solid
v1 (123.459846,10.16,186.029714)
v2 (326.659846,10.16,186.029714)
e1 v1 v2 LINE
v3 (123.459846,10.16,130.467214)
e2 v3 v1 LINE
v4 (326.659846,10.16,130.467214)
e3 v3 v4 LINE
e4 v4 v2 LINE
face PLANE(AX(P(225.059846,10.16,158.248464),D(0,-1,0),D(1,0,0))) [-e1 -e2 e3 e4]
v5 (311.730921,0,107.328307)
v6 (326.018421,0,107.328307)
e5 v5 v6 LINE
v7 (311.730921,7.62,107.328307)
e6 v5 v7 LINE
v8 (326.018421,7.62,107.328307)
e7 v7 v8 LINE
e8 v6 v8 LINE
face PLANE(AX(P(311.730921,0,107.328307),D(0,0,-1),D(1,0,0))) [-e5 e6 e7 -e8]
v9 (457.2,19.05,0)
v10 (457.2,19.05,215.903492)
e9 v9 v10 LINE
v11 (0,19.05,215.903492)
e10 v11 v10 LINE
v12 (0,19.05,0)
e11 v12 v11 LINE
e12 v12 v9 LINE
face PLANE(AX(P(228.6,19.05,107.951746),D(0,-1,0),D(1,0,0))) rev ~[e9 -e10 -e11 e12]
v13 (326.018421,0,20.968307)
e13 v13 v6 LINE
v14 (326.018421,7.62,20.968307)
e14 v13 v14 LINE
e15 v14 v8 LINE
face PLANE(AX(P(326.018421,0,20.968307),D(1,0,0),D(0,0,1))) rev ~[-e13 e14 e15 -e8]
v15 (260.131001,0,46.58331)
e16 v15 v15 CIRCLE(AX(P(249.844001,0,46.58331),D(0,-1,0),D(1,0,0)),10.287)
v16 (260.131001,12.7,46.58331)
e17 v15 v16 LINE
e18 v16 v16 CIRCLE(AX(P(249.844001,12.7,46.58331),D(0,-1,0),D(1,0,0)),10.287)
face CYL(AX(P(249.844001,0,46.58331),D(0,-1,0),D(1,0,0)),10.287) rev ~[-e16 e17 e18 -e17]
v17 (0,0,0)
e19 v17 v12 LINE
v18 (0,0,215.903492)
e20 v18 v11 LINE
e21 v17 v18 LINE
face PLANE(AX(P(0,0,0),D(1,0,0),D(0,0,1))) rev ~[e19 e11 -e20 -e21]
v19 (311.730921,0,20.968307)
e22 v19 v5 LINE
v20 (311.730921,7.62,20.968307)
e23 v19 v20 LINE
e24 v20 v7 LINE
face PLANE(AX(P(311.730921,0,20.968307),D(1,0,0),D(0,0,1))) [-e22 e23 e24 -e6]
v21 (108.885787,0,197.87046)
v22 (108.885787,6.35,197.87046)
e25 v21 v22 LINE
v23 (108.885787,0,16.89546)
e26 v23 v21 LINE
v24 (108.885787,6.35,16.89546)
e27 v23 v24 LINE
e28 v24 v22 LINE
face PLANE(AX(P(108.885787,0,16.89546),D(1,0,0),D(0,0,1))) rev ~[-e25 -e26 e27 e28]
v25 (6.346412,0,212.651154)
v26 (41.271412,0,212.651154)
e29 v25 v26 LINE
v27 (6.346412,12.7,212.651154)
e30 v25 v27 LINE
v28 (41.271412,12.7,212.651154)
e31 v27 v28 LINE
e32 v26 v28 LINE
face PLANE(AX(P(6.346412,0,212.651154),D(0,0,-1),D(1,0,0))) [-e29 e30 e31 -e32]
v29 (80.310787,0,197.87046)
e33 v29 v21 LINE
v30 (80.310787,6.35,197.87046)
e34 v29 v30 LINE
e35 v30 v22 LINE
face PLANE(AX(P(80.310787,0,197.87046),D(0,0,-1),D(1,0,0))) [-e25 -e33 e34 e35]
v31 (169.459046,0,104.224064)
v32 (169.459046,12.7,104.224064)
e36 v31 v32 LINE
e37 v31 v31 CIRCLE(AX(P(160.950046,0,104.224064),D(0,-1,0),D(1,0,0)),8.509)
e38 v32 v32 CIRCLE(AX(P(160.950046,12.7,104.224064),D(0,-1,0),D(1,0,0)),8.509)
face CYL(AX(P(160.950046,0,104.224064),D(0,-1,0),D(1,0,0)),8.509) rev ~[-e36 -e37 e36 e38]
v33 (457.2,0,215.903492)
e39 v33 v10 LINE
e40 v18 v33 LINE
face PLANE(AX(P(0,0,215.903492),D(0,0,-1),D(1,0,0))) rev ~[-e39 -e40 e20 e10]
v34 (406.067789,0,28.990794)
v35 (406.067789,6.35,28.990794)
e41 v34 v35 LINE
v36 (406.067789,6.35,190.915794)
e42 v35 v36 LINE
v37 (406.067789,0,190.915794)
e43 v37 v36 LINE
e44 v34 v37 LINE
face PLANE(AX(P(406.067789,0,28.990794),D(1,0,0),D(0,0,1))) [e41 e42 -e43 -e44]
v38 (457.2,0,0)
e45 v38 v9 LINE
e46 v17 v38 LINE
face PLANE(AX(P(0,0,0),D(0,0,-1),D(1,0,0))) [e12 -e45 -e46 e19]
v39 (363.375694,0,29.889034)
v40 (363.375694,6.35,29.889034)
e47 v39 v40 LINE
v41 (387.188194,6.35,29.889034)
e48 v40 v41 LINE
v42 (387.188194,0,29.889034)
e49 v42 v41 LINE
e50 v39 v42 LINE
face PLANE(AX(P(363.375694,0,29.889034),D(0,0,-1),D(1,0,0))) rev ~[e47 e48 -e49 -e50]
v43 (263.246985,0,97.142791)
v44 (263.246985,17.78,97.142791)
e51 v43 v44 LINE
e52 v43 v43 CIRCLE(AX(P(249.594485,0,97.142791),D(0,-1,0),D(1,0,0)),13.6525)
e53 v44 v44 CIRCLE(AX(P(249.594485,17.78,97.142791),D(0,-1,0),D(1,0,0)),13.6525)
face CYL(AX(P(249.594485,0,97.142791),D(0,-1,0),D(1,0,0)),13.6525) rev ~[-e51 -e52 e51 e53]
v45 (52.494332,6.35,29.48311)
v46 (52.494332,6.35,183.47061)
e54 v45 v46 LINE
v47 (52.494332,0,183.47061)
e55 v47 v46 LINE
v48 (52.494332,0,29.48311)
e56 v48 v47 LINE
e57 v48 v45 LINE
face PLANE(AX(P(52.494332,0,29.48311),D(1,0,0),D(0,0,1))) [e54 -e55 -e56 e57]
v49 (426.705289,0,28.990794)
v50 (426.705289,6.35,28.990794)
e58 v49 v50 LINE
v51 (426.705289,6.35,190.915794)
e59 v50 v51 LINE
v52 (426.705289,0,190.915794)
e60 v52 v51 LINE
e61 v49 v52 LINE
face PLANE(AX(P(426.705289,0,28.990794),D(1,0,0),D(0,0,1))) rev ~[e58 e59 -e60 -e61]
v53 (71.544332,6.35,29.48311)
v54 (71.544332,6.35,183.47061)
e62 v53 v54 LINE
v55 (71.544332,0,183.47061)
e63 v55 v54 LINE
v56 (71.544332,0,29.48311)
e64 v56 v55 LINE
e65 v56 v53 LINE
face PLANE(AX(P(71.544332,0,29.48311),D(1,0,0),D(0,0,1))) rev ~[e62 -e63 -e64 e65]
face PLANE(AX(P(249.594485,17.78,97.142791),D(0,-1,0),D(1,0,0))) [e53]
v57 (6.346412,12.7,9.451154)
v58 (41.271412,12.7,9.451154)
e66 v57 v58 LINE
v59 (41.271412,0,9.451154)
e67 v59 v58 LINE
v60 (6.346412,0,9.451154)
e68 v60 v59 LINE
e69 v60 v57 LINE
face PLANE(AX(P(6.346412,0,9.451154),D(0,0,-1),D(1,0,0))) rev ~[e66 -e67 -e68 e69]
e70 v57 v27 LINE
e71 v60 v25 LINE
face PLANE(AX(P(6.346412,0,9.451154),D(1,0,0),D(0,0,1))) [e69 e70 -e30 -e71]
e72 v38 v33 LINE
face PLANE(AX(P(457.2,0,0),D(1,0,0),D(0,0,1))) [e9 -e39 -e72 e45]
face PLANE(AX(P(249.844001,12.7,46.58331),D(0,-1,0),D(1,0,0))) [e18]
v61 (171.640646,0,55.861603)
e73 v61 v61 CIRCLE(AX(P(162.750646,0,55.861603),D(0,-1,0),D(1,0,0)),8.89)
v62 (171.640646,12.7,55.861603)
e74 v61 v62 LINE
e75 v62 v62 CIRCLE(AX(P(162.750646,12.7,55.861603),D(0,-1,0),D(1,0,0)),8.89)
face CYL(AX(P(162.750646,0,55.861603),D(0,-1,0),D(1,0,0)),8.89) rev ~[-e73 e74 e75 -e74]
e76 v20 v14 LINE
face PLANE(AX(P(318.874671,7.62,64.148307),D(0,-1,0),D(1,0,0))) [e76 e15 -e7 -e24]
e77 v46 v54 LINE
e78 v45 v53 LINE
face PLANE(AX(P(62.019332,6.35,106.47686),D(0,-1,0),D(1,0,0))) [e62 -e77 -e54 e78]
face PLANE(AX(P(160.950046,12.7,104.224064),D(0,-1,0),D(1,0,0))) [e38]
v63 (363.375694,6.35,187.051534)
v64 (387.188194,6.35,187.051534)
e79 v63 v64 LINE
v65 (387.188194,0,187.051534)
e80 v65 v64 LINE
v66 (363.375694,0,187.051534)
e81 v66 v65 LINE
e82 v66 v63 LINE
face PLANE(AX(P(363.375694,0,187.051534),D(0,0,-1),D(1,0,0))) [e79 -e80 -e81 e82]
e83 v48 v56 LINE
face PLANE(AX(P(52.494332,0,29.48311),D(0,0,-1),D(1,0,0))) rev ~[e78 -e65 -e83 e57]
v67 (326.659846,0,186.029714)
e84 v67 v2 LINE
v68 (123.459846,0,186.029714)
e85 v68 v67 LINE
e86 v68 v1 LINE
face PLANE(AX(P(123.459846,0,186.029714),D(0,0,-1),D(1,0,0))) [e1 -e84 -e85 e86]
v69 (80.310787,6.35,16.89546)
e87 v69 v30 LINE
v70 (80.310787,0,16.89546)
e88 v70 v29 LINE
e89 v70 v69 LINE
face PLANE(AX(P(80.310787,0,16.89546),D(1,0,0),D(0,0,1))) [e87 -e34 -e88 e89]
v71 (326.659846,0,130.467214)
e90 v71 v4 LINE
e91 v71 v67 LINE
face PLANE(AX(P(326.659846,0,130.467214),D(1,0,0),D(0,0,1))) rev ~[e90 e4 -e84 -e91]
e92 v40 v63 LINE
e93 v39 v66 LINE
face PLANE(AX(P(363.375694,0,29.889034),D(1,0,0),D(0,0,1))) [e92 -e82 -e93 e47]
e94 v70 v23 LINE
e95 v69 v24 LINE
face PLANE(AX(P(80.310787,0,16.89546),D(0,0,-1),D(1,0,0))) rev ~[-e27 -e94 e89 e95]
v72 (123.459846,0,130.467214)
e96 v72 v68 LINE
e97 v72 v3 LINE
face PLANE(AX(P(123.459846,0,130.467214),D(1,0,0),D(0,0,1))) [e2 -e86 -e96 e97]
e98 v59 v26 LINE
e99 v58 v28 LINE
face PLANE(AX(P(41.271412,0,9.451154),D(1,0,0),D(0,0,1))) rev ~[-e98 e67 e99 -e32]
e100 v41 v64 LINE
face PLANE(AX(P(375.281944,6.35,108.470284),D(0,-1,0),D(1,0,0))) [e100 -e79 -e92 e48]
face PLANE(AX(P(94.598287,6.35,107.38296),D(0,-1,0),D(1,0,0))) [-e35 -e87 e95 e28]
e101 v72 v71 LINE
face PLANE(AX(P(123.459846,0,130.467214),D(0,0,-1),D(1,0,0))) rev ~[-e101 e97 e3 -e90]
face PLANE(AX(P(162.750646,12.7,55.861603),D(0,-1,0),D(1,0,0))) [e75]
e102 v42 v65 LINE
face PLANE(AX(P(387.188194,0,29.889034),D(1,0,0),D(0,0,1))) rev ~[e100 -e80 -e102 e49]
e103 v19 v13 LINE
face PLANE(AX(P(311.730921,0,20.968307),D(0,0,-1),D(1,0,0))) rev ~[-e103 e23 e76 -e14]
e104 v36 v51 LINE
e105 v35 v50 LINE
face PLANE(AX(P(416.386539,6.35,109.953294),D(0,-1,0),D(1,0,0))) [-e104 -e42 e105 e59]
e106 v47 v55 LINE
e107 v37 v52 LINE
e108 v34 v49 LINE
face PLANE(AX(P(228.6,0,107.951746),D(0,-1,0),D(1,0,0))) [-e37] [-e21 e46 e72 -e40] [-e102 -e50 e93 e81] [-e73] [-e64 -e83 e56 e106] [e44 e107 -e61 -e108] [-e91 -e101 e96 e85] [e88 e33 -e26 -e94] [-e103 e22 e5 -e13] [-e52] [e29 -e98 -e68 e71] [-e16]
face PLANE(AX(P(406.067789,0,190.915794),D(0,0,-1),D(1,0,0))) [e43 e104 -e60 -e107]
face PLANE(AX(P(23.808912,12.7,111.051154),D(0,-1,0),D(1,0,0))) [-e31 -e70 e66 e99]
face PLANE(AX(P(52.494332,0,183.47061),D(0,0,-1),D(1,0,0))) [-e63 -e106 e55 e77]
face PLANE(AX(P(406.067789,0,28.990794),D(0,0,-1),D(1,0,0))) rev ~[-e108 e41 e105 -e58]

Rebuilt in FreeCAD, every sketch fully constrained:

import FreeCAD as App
import Part
import Sketcher
from FreeCAD import Vector
Q = App.Units.Quantity

doc = App.newDocument("Part")
body = doc.addObject("PartDesign::Body", "Body")

# Sketch on XZ plane
sketch1 = doc.addObject("Sketcher::SketchObject", "Sketch")
body.addObject(sketch1)
sketch1.AttachmentSupport = (doc.XZ_Plane, [""])
sketch1.MapMode = "FlatFace"
sketch1.addGeometry([
    Part.LineSegment(Vector(0, 215.903492, 0), Vector(0, 0, 0)),
    Part.LineSegment(Vector(0, 0, 0), Vector(457.2, 0, 0)),
    Part.LineSegment(Vector(457.2, 0, 0), Vector(457.2, 215.903492, 0)),
    Part.LineSegment(Vector(457.2, 215.903492, 0), Vector(0, 215.903492, 0)),
], False)
sketch1.addConstraint([
    Sketcher.Constraint("Coincident", 0, 2, 1, 1),
    Sketcher.Constraint("Coincident", 1, 2, 2, 1),
    Sketcher.Constraint("Coincident", 2, 2, 3, 1),
    Sketcher.Constraint("Coincident", 3, 2, 0, 1),
    Sketcher.Constraint("Vertical", 0),
    Sketcher.Constraint("Horizontal", 1),
    Sketcher.Constraint("Vertical", 2),
    Sketcher.Constraint("Horizontal", 3),
    Sketcher.Constraint("Coincident", 0, 2, -1, 1),
    Sketcher.Constraint("DistanceX", 1, 1, 1, 2, Q("18 in")),
    Sketcher.Constraint("DistanceY", 0, 2, 0, 1, Q("215.903491 mm")),
])
pad1 = doc.addObject("PartDesign::Pad", "Pad")
body.addObject(pad1)
pad1.Profile = sketch1
pad1.Length = Q("0.75 in")
pad1.Reversed = True

# Sketch on XZ plane
sketch2 = doc.addObject("Sketcher::SketchObject", "Sketch001")
body.addObject(sketch2)
sketch2.AttachmentSupport = (doc.XZ_Plane, [""])
sketch2.MapMode = "FlatFace"
sketch2.addGeometry([
    Part.LineSegment(Vector(406.067789, 190.915794, 0), Vector(406.067789, 28.990794, 0)),
    Part.LineSegment(Vector(406.067789, 28.990794, 0), Vector(426.705289, 28.990794, 0)),
    Part.LineSegment(Vector(426.705289, 28.990794, 0), Vector(426.705289, 190.915794, 0)),
    Part.LineSegment(Vector(426.705289, 190.915794, 0), Vector(406.067789, 190.915794, 0)),
], False)
sketch2.addConstraint([
    Sketcher.Constraint("Coincident", 0, 2, 1, 1),
    Sketcher.Constraint("Coincident", 1, 2, 2, 1),
    Sketcher.Constraint("Coincident", 2, 2, 3, 1),
    Sketcher.Constraint("Coincident", 3, 2, 0, 1),
    Sketcher.Constraint("Vertical", 0),
    Sketcher.Constraint("Horizontal", 1),
    Sketcher.Constraint("Vertical", 2),
    Sketcher.Constraint("Horizontal", 3),
    Sketcher.Constraint("DistanceX", 1, 1, 1, 2, Q("0.8125 in")),
    Sketcher.Constraint("DistanceY", 0, 2, 0, 1, Q("6.375 in")),
    Sketcher.Constraint("DistanceX", -1, 1, 0, 2, Q("406.067789 mm")),
    Sketcher.Constraint("DistanceY", -1, 1, 0, 2, Q("28.990794 mm")),
])
pocket1 = doc.addObject("PartDesign::Pocket", "Pocket")
body.addObject(pocket1)
pocket1.Profile = sketch2
pocket1.Length = Q("0.25 in")

# Sketch on XZ plane
sketch3 = doc.addObject("Sketcher::SketchObject", "Sketch002")
body.addObject(sketch3)
sketch3.AttachmentSupport = (doc.XZ_Plane, [""])
sketch3.MapMode = "FlatFace"
sketch3.addGeometry([
    Part.LineSegment(Vector(363.375694, 187.051534, 0), Vector(363.375694, 29.889034, 0)),
    Part.LineSegment(Vector(363.375694, 29.889034, 0), Vector(387.188194, 29.889034, 0)),
    Part.LineSegment(Vector(387.188194, 29.889034, 0), Vector(387.188194, 187.051534, 0)),
    Part.LineSegment(Vector(387.188194, 187.051534, 0), Vector(363.375694, 187.051534, 0)),
], False)
sketch3.addConstraint([
    Sketcher.Constraint("Coincident", 0, 2, 1, 1),
    Sketcher.Constraint("Coincident", 1, 2, 2, 1),
    Sketcher.Constraint("Coincident", 2, 2, 3, 1),
    Sketcher.Constraint("Coincident", 3, 2, 0, 1),
    Sketcher.Constraint("Vertical", 0),
    Sketcher.Constraint("Horizontal", 1),
    Sketcher.Constraint("Vertical", 2),
    Sketcher.Constraint("Horizontal", 3),
    Sketcher.Constraint("DistanceX", 1, 1, 1, 2, Q("0.9375 in")),
    Sketcher.Constraint("DistanceY", 0, 2, 0, 1, Q("6.1875 in")),
    Sketcher.Constraint("DistanceX", -1, 1, 0, 2, Q("363.375694 mm")),
    Sketcher.Constraint("DistanceY", -1, 1, 0, 2, Q("29.889034 mm")),
])
pocket2 = doc.addObject("PartDesign::Pocket", "Pocket001")
body.addObject(pocket2)
pocket2.Profile = sketch3
pocket2.Length = Q("0.25 in")

# Sketch on XZ plane
sketch4 = doc.addObject("Sketcher::SketchObject", "Sketch003")
body.addObject(sketch4)
sketch4.AttachmentSupport = (doc.XZ_Plane, [""])
sketch4.MapMode = "FlatFace"
sketch4.addGeometry([
    Part.LineSegment(Vector(123.459846, 186.029714, 0), Vector(123.459846, 130.467214, 0)),
    Part.LineSegment(Vector(123.459846, 130.467214, 0), Vector(326.659846, 130.467214, 0)),
    Part.LineSegment(Vector(326.659846, 130.467214, 0), Vector(326.659846, 186.029714, 0)),
    Part.LineSegment(Vector(326.659846, 186.029714, 0), Vector(123.459846, 186.029714, 0)),
], False)
sketch4.addConstraint([
    Sketcher.Constraint("Coincident", 0, 2, 1, 1),
    Sketcher.Constraint("Coincident", 1, 2, 2, 1),
    Sketcher.Constraint("Coincident", 2, 2, 3, 1),
    Sketcher.Constraint("Coincident", 3, 2, 0, 1),
    Sketcher.Constraint("Vertical", 0),
    Sketcher.Constraint("Horizontal", 1),
    Sketcher.Constraint("Vertical", 2),
    Sketcher.Constraint("Horizontal", 3),
    Sketcher.Constraint("DistanceX", 1, 1, 1, 2, Q("8 in")),
    Sketcher.Constraint("DistanceY", 0, 2, 0, 1, Q("2.1875 in")),
    Sketcher.Constraint("DistanceX", -1, 1, 0, 2, Q("123.459846 mm")),
    Sketcher.Constraint("DistanceY", -1, 1, 0, 2, Q("130.467214 mm")),
])
pocket3 = doc.addObject("PartDesign::Pocket", "Pocket002")
body.addObject(pocket3)
pocket3.Profile = sketch4
pocket3.Length = Q("0.4 in")

# Sketch on XZ plane
sketch5 = doc.addObject("Sketcher::SketchObject", "Sketch004")
body.addObject(sketch5)
sketch5.AttachmentSupport = (doc.XZ_Plane, [""])
sketch5.MapMode = "FlatFace"
sketch5.addGeometry([
    Part.LineSegment(Vector(311.730921, 107.328307, 0), Vector(311.730921, 20.968307, 0)),
    Part.LineSegment(Vector(311.730921, 20.968307, 0), Vector(326.018421, 20.968307, 0)),
    Part.LineSegment(Vector(326.018421, 20.968307, 0), Vector(326.018421, 107.328307, 0)),
    Part.LineSegment(Vector(326.018421, 107.328307, 0), Vector(311.730921, 107.328307, 0)),
], False)
sketch5.addConstraint([
    Sketcher.Constraint("Coincident", 0, 2, 1, 1),
    Sketcher.Constraint("Coincident", 1, 2, 2, 1),
    Sketcher.Constraint("Coincident", 2, 2, 3, 1),
    Sketcher.Constraint("Coincident", 3, 2, 0, 1),
    Sketcher.Constraint("Vertical", 0),
    Sketcher.Constraint("Horizontal", 1),
    Sketcher.Constraint("Vertical", 2),
    Sketcher.Constraint("Horizontal", 3),
    Sketcher.Constraint("DistanceY", 0, 2, 0, 1, Q("3.4 in")),
    Sketcher.Constraint("DistanceX", 1, 1, 1, 2, Q("0.5625 in")),
    Sketcher.Constraint("DistanceX", -1, 1, 0, 2, Q("311.730921 mm")),
    Sketcher.Constraint("DistanceY", -1, 1, 0, 2, Q("20.968307 mm")),
])
pocket4 = doc.addObject("PartDesign::Pocket", "Pocket003")
body.addObject(pocket4)
pocket4.Profile = sketch5
pocket4.Length = Q("0.3 in")

# Sketch on XZ plane
sketch6 = doc.addObject("Sketcher::SketchObject", "Sketch005")
body.addObject(sketch6)
sketch6.AttachmentSupport = (doc.XZ_Plane, [""])
sketch6.MapMode = "FlatFace"
sketch6.addGeometry([
    Part.LineSegment(Vector(6.346412, 212.651154, 0), Vector(6.346412, 9.451154, 0)),
    Part.LineSegment(Vector(6.346412, 9.451154, 0), Vector(41.271412, 9.451154, 0)),
    Part.LineSegment(Vector(41.271412, 9.451154, 0), Vector(41.271412, 212.651154, 0)),
    Part.LineSegment(Vector(41.271412, 212.651154, 0), Vector(6.346412, 212.651154, 0)),
], False)
sketch6.addConstraint([
    Sketcher.Constraint("Coincident", 0, 2, 1, 1),
    Sketcher.Constraint("Coincident", 1, 2, 2, 1),
    Sketcher.Constraint("Coincident", 2, 2, 3, 1),
    Sketcher.Constraint("Coincident", 3, 2, 0, 1),
    Sketcher.Constraint("Vertical", 0),
    Sketcher.Constraint("Horizontal", 1),
    Sketcher.Constraint("Vertical", 2),
    Sketcher.Constraint("Horizontal", 3),
    Sketcher.Constraint("DistanceY", 0, 2, 0, 1, Q("8 in")),
    Sketcher.Constraint("DistanceX", 1, 1, 1, 2, Q("1.375 in")),
    Sketcher.Constraint("DistanceX", -1, 1, 1, 2, Q("41.271412 mm")),
    Sketcher.Constraint("DistanceY", -1, 1, 0, 2, Q("9.451154 mm")),
])
pocket5 = doc.addObject("PartDesign::Pocket", "Pocket004")
body.addObject(pocket5)
pocket5.Profile = sketch6
pocket5.Length = Q("0.5 in")

# Sketch on XZ plane
sketch7 = doc.addObject("Sketcher::SketchObject", "Sketch006")
body.addObject(sketch7)
sketch7.AttachmentSupport = (doc.XZ_Plane, [""])
sketch7.MapMode = "FlatFace"
sketch7.addGeometry([
    Part.LineSegment(Vector(52.494332, 183.47061, 0), Vector(52.494332, 29.48311, 0)),
    Part.LineSegment(Vector(52.494332, 29.48311, 0), Vector(71.544332, 29.48311, 0)),
    Part.LineSegment(Vector(71.544332, 29.48311, 0), Vector(71.544332, 183.47061, 0)),
    Part.LineSegment(Vector(71.544332, 183.47061, 0), Vector(52.494332, 183.47061, 0)),
], False)
sketch7.addConstraint([
    Sketcher.Constraint("Coincident", 0, 2, 1, 1),
    Sketcher.Constraint("Coincident", 1, 2, 2, 1),
    Sketcher.Constraint("Coincident", 2, 2, 3, 1),
    Sketcher.Constraint("Coincident", 3, 2, 0, 1),
    Sketcher.Constraint("Vertical", 0),
    Sketcher.Constraint("Horizontal", 1),
    Sketcher.Constraint("Vertical", 2),
    Sketcher.Constraint("Horizontal", 3),
    Sketcher.Constraint("DistanceX", 1, 1, 1, 2, Q("0.75 in")),
    Sketcher.Constraint("DistanceY", 0, 2, 0, 1, Q("6.0625 in")),
    Sketcher.Constraint("DistanceY", -1, 1, 0, 2, Q("29.48311 mm")),
    Sketcher.Constraint("DistanceX", -1, 1, 1, 2, Q("71.544332 mm")),
])
pocket6 = doc.addObject("PartDesign::Pocket", "Pocket005")
body.addObject(pocket6)
pocket6.Profile = sketch7
pocket6.Length = Q("0.25 in")

# Sketch on XZ plane
sketch8 = doc.addObject("Sketcher::SketchObject", "Sketch007")
body.addObject(sketch8)
sketch8.AttachmentSupport = (doc.XZ_Plane, [""])
sketch8.MapMode = "FlatFace"
sketch8.addGeometry(Part.Circle(Vector(249.594485, 97.142791, 0), Vector(0, 0, 1), 13.6525), False)
sketch8.addConstraint([
    Sketcher.Constraint("Diameter", 0, Q("1.075 in")),
    Sketcher.Constraint("DistanceY", -1, 1, 0, 3, Q("97.142791 mm")),
    Sketcher.Constraint("DistanceX", -1, 1, 0, 3, Q("249.594485 mm")),
])
pocket7 = doc.addObject("PartDesign::Pocket", "Pocket006")
body.addObject(pocket7)
pocket7.Profile = sketch8
pocket7.Length = Q("0.7 in")

# Sketch on XZ plane
sketch9 = doc.addObject("Sketcher::SketchObject", "Sketch008")
body.addObject(sketch9)
sketch9.AttachmentSupport = (doc.XZ_Plane, [""])
sketch9.MapMode = "FlatFace"
sketch9.addGeometry(Part.Circle(Vector(249.844001, 46.58331, 0), Vector(0, 0, 1), 10.287), False)
sketch9.addConstraint([
    Sketcher.Constraint("Diameter", 0, Q("0.81 in")),
    Sketcher.Constraint("DistanceX", -1, 1, 0, 3, Q("249.844001 mm")),
    Sketcher.Constraint("DistanceY", -1, 1, 0, 3, Q("46.58331 mm")),
])
pocket8 = doc.addObject("PartDesign::Pocket", "Pocket007")
body.addObject(pocket8)
pocket8.Profile = sketch9
pocket8.Length = Q("0.5 in")

# Sketch on XZ plane
sketch10 = doc.addObject("Sketcher::SketchObject", "Sketch009")
body.addObject(sketch10)
sketch10.AttachmentSupport = (doc.XZ_Plane, [""])
sketch10.MapMode = "FlatFace"
sketch10.addGeometry(Part.Circle(Vector(162.750646, 55.861603, 0), Vector(0, 0, 1), 8.89), False)
sketch10.addConstraint([
    Sketcher.Constraint("Diameter", 0, Q("0.7 in")),
    Sketcher.Constraint("DistanceX", -1, 1, 0, 3, Q("162.750646 mm")),
    Sketcher.Constraint("DistanceY", -1, 1, 0, 3, Q("55.861603 mm")),
])
pocket9 = doc.addObject("PartDesign::Pocket", "Pocket008")
body.addObject(pocket9)
pocket9.Profile = sketch10
pocket9.Length = Q("0.5 in")

# Sketch on XZ plane
sketch11 = doc.addObject("Sketcher::SketchObject", "Sketch010")
body.addObject(sketch11)
sketch11.AttachmentSupport = (doc.XZ_Plane, [""])
sketch11.MapMode = "FlatFace"
sketch11.addGeometry(Part.Circle(Vector(160.950046, 104.224064, 0), Vector(0, 0, 1), 8.509), False)
sketch11.addConstraint([
    Sketcher.Constraint("Diameter", 0, Q("0.67 in")),
    Sketcher.Constraint("DistanceX", -1, 1, 0, 3, Q("160.950046 mm")),
    Sketcher.Constraint("DistanceY", -1, 1, 0, 3, Q("104.224064 mm")),
])
pocket10 = doc.addObject("PartDesign::Pocket", "Pocket009")
body.addObject(pocket10)
pocket10.Profile = sketch11
pocket10.Length = Q("0.5 in")

# Sketch on XZ plane
sketch12 = doc.addObject("Sketcher::SketchObject", "Sketch011")
body.addObject(sketch12)
sketch12.AttachmentSupport = (doc.XZ_Plane, [""])
sketch12.MapMode = "FlatFace"
sketch12.addGeometry([
    Part.LineSegment(Vector(80.310787, 197.87046, 0), Vector(80.310787, 16.89546, 0)),
    Part.LineSegment(Vector(80.310787, 16.89546, 0), Vector(108.885787, 16.89546, 0)),
    Part.LineSegment(Vector(108.885787, 16.89546, 0), Vector(108.885787, 197.87046, 0)),
    Part.LineSegment(Vector(108.885787, 197.87046, 0), Vector(80.310787, 197.87046, 0)),
], False)
sketch12.addConstraint([
    Sketcher.Constraint("Coincident", 0, 2, 1, 1),
    Sketcher.Constraint("Coincident", 1, 2, 2, 1),
    Sketcher.Constraint("Coincident", 2, 2, 3, 1),
    Sketcher.Constraint("Coincident", 3, 2, 0, 1),
    Sketcher.Constraint("Vertical", 0),
    Sketcher.Constraint("Horizontal", 1),
    Sketcher.Constraint("Vertical", 2),
    Sketcher.Constraint("Horizontal", 3),
    Sketcher.Constraint("DistanceX", 1, 1, 1, 2, Q("1.125 in")),
    Sketcher.Constraint("DistanceY", 0, 2, 0, 1, Q("7.125 in")),
    Sketcher.Constraint("DistanceY", -1, 1, 0, 2, Q("16.89546 mm")),
    Sketcher.Constraint("DistanceX", -1, 1, 0, 2, Q("80.310787 mm")),
])
pocket11 = doc.addObject("PartDesign::Pocket", "Pocket010")
body.addObject(pocket11)
pocket11.Profile = sketch12
pocket11.Length = Q("0.25 in")

doc.recompute()
